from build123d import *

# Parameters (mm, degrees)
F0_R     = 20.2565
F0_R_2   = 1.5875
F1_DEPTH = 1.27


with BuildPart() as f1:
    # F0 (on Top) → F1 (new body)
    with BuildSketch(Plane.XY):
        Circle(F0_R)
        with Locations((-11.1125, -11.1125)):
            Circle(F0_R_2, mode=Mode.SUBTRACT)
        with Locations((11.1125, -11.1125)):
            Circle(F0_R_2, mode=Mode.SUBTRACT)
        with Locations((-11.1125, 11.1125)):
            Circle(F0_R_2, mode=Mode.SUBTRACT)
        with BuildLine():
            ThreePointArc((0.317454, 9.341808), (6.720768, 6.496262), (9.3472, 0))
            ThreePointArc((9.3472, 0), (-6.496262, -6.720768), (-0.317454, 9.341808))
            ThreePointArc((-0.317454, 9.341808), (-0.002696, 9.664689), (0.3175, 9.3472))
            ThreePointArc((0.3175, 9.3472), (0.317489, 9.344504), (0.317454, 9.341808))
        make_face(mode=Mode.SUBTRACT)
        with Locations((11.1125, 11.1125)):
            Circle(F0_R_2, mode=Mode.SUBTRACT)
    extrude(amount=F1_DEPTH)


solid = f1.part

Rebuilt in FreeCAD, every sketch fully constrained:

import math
import FreeCAD as App
import Part
import Sketcher

V = App.Vector
Q = App.Units.Quantity

doc = App.newDocument("Part")
params = doc.addObject("Spreadsheet::Sheet", "Params")
for row, (alias, value) in enumerate([
    ("sketch1_diameter", "1.595 in"),
    ("sketch1_diameter2", "0.125 in"),
    ("sketch1_radius", "0.3680001 in"),
    ("pad1_length", "0.05 in"),
], start=1):
    params.set(f"A{row}", alias)
    params.set(f"B{row}", "=" + value)
    params.setAlias(f"B{row}", alias)

body = doc.addObject("PartDesign::Body", "Body")

# Sketch on XY plane
sketch1 = doc.addObject("Sketcher::SketchObject", "Sketch")
body.addObject(sketch1)
sketch1.AttachmentSupport = (doc.XY_Plane, [""])
sketch1.MapMode = "FlatFace"
sketch1.addGeometry(Part.Circle(V(0, 0, 0), V(0, 0, 1), 20.256), False)
sketch1.addGeometry(Part.Circle(V(-11.113, -11.113, 0), V(0, 0, 1), 1.587), False)
sketch1.addGeometry(Part.Circle(V(11.113, -11.113, 0), V(0, 0, 1), 1.587), False)
sketch1.addGeometry(Part.Circle(V(-11.113, 11.113, 0), V(0, 0, 1), 1.587), False)
sketch1.addGeometry(Part.ArcOfCircle(Part.Circle(V(0.015, 9.347, 0), V(0, 0, 1), 0.303), math.radians(-1), math.radians(0.02)), False)
sketch1.addGeometry(Part.ArcOfCircle(Part.Circle(V(0, 0, 0), V(0, 0, 1), 9.347), math.radians(0), math.radians(88)), False)
sketch1.addGeometry(Part.ArcOfCircle(Part.Circle(V(0, 0, 0), V(0, 0, 1), 9.347), math.radians(92), math.radians(360)), False)
sketch1.addGeometry(Part.ArcOfCircle(Part.Circle(V(0, 9.347, 0), V(0, 0, 1), 0.317), math.radians(0), math.radians(181)), False)
sketch1.addGeometry(Part.Circle(V(11.113, 11.113, 0), V(0, 0, 1), 1.587), False)
sketch1.addConstraint(Sketcher.Constraint("Coincident", 4, 1, 5, 2))
sketch1.addConstraint(Sketcher.Constraint("Tangent", 5, 1, 6, 2))
sketch1.addConstraint(Sketcher.Constraint("Coincident", 6, 1, 7, 2))
sketch1.addConstraint(Sketcher.Constraint("Coincident", 7, 1, 4, 2))
sketch1.addConstraint(Sketcher.Constraint("Coincident", 0, 3, -1, 1))
sketch1.addConstraint(Sketcher.Constraint("Coincident", 5, 3, -1, 1))
sketch1.addConstraint(Sketcher.Constraint("Equal", 1, 2))
sketch1.addConstraint(Sketcher.Constraint("Equal", 2, 3))
sketch1.addConstraint(Sketcher.Constraint("Equal", 5, 6))
sketch1.addConstraint(Sketcher.Constraint("Equal", 3, 8))
sketch1.addConstraint(Sketcher.Constraint("Symmetric", 2, 3, 3, 3, -1, 1))
sketch1.addConstraint(Sketcher.Constraint("Symmetric", 1, 3, 8, 3, -1, 1))
sketch1.addConstraint(Sketcher.Constraint("Symmetric", 1, 3, 2, 3, -2))
sketch1.addConstraint(Sketcher.Constraint("PointOnObject", 7, 3, -2))
sketch1.addConstraint(Sketcher.Constraint("PointOnObject", 5, 1, -1))
sketch1.addConstraint(Sketcher.Constraint("Diameter", 0, Q("1.595 in")))
sketch1.addConstraint(Sketcher.Constraint("Diameter", 1, Q("0.125 in")))
sketch1.addConstraint(Sketcher.Constraint("Radius", 5, Q("0.3680001 in")))
sketch1.addConstraint(Sketcher.Constraint("Radius", 7, Q("0.0125 in")))
sketch1.addConstraint(Sketcher.Constraint("DistanceX", 1, 3, -1, 1, Q("0.4375 in")))
sketch1.addConstraint(Sketcher.Constraint("DistanceY", 1, 3, -1, 1, Q("0.4375 in")))
sketch1.addConstraint(Sketcher.Constraint("DistanceY", -1, 1, 7, 3, Q("0.368 in")))
sketch1.addConstraint(Sketcher.Constraint("DistanceY", -1, 1, 7, 1, Q("0.368 in")))
sketch1.addConstraint(Sketcher.Constraint("Radius", 4, 0.30289))
sketch1.addConstraint(Sketcher.Constraint("DistanceY", 5, 3, 4, 3, 9.347089))
sketch1.setExpression("Constraints[15]", "Params.sketch1_diameter")
sketch1.setExpression("Constraints[16]", "Params.sketch1_diameter2")
sketch1.setExpression("Constraints[17]", "Params.sketch1_radius")
pad1 = doc.addObject("PartDesign::Pad", "Pad")
body.addObject(pad1)
pad1.Profile = sketch1
pad1.setExpression("Length", "Params.pad1_length")

doc.recompute()
